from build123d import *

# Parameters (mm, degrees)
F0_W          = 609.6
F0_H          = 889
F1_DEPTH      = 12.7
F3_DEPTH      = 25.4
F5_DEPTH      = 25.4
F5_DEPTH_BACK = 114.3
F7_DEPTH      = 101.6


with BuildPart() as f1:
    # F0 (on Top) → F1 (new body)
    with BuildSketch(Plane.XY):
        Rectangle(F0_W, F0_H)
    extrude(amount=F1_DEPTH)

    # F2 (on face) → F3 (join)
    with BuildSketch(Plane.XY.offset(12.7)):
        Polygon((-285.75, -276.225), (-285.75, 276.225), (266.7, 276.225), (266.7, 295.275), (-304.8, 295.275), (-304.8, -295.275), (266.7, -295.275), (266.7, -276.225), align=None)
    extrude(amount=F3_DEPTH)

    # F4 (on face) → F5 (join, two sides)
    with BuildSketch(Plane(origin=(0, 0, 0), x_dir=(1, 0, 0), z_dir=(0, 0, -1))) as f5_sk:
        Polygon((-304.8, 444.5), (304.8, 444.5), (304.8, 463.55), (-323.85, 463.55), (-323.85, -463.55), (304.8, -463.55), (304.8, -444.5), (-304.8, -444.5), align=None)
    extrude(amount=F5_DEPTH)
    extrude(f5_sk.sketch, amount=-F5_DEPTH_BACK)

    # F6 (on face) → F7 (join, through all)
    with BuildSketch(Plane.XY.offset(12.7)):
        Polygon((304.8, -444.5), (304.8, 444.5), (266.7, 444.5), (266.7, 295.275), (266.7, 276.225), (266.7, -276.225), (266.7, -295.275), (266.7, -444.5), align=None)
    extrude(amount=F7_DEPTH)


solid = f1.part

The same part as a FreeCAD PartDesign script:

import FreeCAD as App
import Part
import Sketcher

V = App.Vector
Q = App.Units.Quantity

doc = App.newDocument("Part")
body = doc.addObject("PartDesign::Body", "Body")

# Sketch on XY plane
sketch1 = body.newObject("Sketcher::SketchObject", "Sketch")
sketch1.AttachmentSupport = (doc.getObject("XY_Plane"), [""])
sketch1.MapMode = "FlatFace"
sketch1.addGeometry([
    Part.LineSegment(V(-304.8, 444.5, 0), V(-304.8, -444.5, 0)),
    Part.LineSegment(V(-304.8, -444.5, 0), V(304.8, -444.5, 0)),
    Part.LineSegment(V(304.8, -444.5, 0), V(304.8, 444.5, 0)),
    Part.LineSegment(V(304.8, 444.5, 0), V(-304.8, 444.5, 0)),
], False)
sketch1.addConstraint([
    Sketcher.Constraint("Coincident", 0, 2, 1, 1),
    Sketcher.Constraint("Coincident", 1, 2, 2, 1),
    Sketcher.Constraint("Coincident", 2, 2, 3, 1),
    Sketcher.Constraint("Coincident", 3, 2, 0, 1),
    Sketcher.Constraint("Vertical", 0),
    Sketcher.Constraint("Horizontal", 1),
    Sketcher.Constraint("Vertical", 2),
    Sketcher.Constraint("Horizontal", 3),
    Sketcher.Constraint("Symmetric", 0, 2, 2, 2, -1, 1),
    Sketcher.Constraint("DistanceX", 1, 1, 1, 2, Q("24 in")),
    Sketcher.Constraint("DistanceY", 0, 2, 0, 1, Q("35 in")),
])
pad1 = body.newObject("PartDesign::Pad", "Pad")
pad1.Profile = sketch1
pad1.Length = Q("0.5 in")

# Sketch on XY plane
sketch2 = body.newObject("Sketcher::SketchObject", "Sketch001")
sketch2.AttachmentSupport = (doc.getObject("XY_Plane"), [""])
sketch2.MapMode = "FlatFace"
sketch2.AttachmentOffset = App.Placement(V(0, 0, 0.5 * 25.4), App.Rotation())
sketch2.addGeometry([
    Part.LineSegment(V(-285.75, -276.225, 0), V(-285.75, 276.225, 0)),  # 0
    Part.LineSegment(V(-285.75, 276.225, 0), V(266.7, 276.225, 0)),  # 1
    Part.LineSegment(V(266.7, 276.225, 0), V(266.7, 295.275, 0)),  # 2
    Part.LineSegment(V(266.7, 295.275, 0), V(-304.8, 295.275, 0)),  # 3
    Part.LineSegment(V(-304.8, 295.275, 0), V(-304.8, -295.275, 0)),  # 4
    Part.LineSegment(V(-304.8, -295.275, 0), V(266.7, -295.275, 0)),  # 5
    Part.LineSegment(V(266.7, -295.275, 0), V(266.7, -276.225, 0)),  # 6
    Part.LineSegment(V(266.7, -276.225, 0), V(-285.75, -276.225, 0)),  # 7
], False)
sketch2.addConstraint([
    Sketcher.Constraint("Coincident", 0, 2, 1, 1),
    Sketcher.Constraint("Coincident", 1, 2, 2, 1),
    Sketcher.Constraint("Coincident", 2, 2, 3, 1),
    Sketcher.Constraint("Coincident", 3, 2, 4, 1),
    Sketcher.Constraint("Coincident", 4, 2, 5, 1),
    Sketcher.Constraint("Coincident", 5, 2, 6, 1),
    Sketcher.Constraint("Coincident", 6, 2, 7, 1),
    Sketcher.Constraint("Coincident", 7, 2, 0, 1),
    Sketcher.Constraint("Vertical", 0),
    Sketcher.Constraint("Horizontal", 1),
    Sketcher.Constraint("Vertical", 2),
    Sketcher.Constraint("Horizontal", 3),
    Sketcher.Constraint("Vertical", 4),
    Sketcher.Constraint("Horizontal", 5),
    Sketcher.Constraint("Vertical", 6),
    Sketcher.Constraint("Horizontal", 7),
    Sketcher.Constraint("Symmetric", 2, 2, 5, 2, -1),
    Sketcher.Constraint("Equal", 7, 0),
    Sketcher.Constraint("Equal", 2, 6),
    Sketcher.Constraint("DistanceX", 3, 2, 3, 1, Q("22.5 in")),
    Sketcher.Constraint("DistanceX", 3, 2, -1, 1, Q("12 in")),
    Sketcher.Constraint("DistanceX", 1, 1, 1, 2, Q("21.75 in")),
    Sketcher.Constraint("DistanceY", 2, 1, 2, 2, Q("0.75 in")),
])
pad2 = body.newObject("PartDesign::Pad", "Pad001")
pad2.Profile = sketch2
pad2.Length = Q("1 in")

# Sketch on XY plane
sketch3 = body.newObject("Sketcher::SketchObject", "Sketch002")
sketch3.AttachmentSupport = (doc.getObject("XY_Plane"), [""])
sketch3.MapMode = "FlatFace"
sketch3.addGeometry([
    Part.LineSegment(V(-304.8, -444.5, 0), V(304.8, -444.5, 0)),  # 0
    Part.LineSegment(V(304.8, -444.5, 0), V(304.8, -463.55, 0)),  # 1
    Part.LineSegment(V(304.8, -463.55, 0), V(-323.85, -463.55, 0)),  # 2
    Part.LineSegment(V(-323.85, -463.55, 0), V(-323.85, 463.55, 0)),  # 3
    Part.LineSegment(V(-323.85, 463.55, 0), V(304.8, 463.55, 0)),  # 4
    Part.LineSegment(V(304.8, 463.55, 0), V(304.8, 444.5, 0)),  # 5
    Part.LineSegment(V(304.8, 444.5, 0), V(-304.8, 444.5, 0)),  # 6
    Part.LineSegment(V(-304.8, 444.5, 0), V(-304.8, -444.5, 0)),  # 7
], False)
sketch3.addConstraint([
    Sketcher.Constraint("Coincident", 0, 2, 1, 1),
    Sketcher.Constraint("Coincident", 1, 2, 2, 1),
    Sketcher.Constraint("Coincident", 2, 2, 3, 1),
    Sketcher.Constraint("Coincident", 3, 2, 4, 1),
    Sketcher.Constraint("Coincident", 4, 2, 5, 1),
    Sketcher.Constraint("Coincident", 5, 2, 6, 1),
    Sketcher.Constraint("Coincident", 6, 2, 7, 1),
    Sketcher.Constraint("Coincident", 7, 2, 0, 1),
    Sketcher.Constraint("Horizontal", 0),
    Sketcher.Constraint("Vertical", 1),
    Sketcher.Constraint("Horizontal", 2),
    Sketcher.Constraint("Vertical", 3),
    Sketcher.Constraint("Horizontal", 4),
    Sketcher.Constraint("Vertical", 5),
    Sketcher.Constraint("Horizontal", 6),
    Sketcher.Constraint("Vertical", 7),
    Sketcher.Constraint("Symmetric", 0, 2, 6, 2, -1, 1),
    Sketcher.Constraint("Symmetric", 1, 2, 4, 2, -1),
    Sketcher.Constraint("DistanceX", 0, 1, 0, 2, Q("24 in")),
    Sketcher.Constraint("DistanceY", 7, 2, 7, 1, Q("35 in")),
    Sketcher.Constraint("DistanceY", 3, 1, 3, 2, Q("36.5 in")),
    Sketcher.Constraint("DistanceX", 2, 2, 2, 1, Q("24.75 in")),
])
pad3 = body.newObject("PartDesign::Pad", "Pad002")
pad3.Profile = sketch3
pad3.Type = "TwoLengths"
pad3.Length = Q("1 in")
pad3.Length2 = Q("4.5 in")
pad3.Reversed = True

# Sketch on XY plane
sketch4 = body.newObject("Sketcher::SketchObject", "Sketch003")
sketch4.AttachmentSupport = (doc.getObject("XY_Plane"), [""])
sketch4.MapMode = "FlatFace"
sketch4.AttachmentOffset = App.Placement(V(0, 0, 0.5 * 25.4), App.Rotation())
sketch4.addGeometry([
    Part.LineSegment(V(304.8, -444.5, 0), V(304.8, 444.5, 0)),
    Part.LineSegment(V(304.8, 444.5, 0), V(266.7, 444.5, 0)),
    Part.LineSegment(V(266.7, 444.5, 0), V(266.7, -444.5, 0)),
    Part.LineSegment(V(266.7, -444.5, 0), V(304.8, -444.5, 0)),
], False)
sketch4.addConstraint([
    Sketcher.Constraint("Coincident", 0, 2, 1, 1),
    Sketcher.Constraint("Coincident", 1, 2, 2, 1),
    Sketcher.Constraint("Coincident", 2, 2, 3, 1),
    Sketcher.Constraint("Coincident", 3, 2, 0, 1),
    Sketcher.Constraint("Vertical", 0),
    Sketcher.Constraint("Horizontal", 1),
    Sketcher.Constraint("Vertical", 2),
    Sketcher.Constraint("Horizontal", 3),
    Sketcher.Constraint("DistanceY", 0, 1, 0, 2, Q("35 in")),
    Sketcher.Constraint("DistanceX", 1, 2, 1, 1, Q("1.5 in")),
    Sketcher.Constraint("DistanceX", -1, 1, 0, 2, Q("12 in")),
    Sketcher.Constraint("DistanceY", -1, 1, 0, 2, Q("17.5 in")),
])
pad4 = body.newObject("PartDesign::Pad", "Pad003")
pad4.Profile = sketch4
pad4.Length = Q("4 in")

doc.recompute()
